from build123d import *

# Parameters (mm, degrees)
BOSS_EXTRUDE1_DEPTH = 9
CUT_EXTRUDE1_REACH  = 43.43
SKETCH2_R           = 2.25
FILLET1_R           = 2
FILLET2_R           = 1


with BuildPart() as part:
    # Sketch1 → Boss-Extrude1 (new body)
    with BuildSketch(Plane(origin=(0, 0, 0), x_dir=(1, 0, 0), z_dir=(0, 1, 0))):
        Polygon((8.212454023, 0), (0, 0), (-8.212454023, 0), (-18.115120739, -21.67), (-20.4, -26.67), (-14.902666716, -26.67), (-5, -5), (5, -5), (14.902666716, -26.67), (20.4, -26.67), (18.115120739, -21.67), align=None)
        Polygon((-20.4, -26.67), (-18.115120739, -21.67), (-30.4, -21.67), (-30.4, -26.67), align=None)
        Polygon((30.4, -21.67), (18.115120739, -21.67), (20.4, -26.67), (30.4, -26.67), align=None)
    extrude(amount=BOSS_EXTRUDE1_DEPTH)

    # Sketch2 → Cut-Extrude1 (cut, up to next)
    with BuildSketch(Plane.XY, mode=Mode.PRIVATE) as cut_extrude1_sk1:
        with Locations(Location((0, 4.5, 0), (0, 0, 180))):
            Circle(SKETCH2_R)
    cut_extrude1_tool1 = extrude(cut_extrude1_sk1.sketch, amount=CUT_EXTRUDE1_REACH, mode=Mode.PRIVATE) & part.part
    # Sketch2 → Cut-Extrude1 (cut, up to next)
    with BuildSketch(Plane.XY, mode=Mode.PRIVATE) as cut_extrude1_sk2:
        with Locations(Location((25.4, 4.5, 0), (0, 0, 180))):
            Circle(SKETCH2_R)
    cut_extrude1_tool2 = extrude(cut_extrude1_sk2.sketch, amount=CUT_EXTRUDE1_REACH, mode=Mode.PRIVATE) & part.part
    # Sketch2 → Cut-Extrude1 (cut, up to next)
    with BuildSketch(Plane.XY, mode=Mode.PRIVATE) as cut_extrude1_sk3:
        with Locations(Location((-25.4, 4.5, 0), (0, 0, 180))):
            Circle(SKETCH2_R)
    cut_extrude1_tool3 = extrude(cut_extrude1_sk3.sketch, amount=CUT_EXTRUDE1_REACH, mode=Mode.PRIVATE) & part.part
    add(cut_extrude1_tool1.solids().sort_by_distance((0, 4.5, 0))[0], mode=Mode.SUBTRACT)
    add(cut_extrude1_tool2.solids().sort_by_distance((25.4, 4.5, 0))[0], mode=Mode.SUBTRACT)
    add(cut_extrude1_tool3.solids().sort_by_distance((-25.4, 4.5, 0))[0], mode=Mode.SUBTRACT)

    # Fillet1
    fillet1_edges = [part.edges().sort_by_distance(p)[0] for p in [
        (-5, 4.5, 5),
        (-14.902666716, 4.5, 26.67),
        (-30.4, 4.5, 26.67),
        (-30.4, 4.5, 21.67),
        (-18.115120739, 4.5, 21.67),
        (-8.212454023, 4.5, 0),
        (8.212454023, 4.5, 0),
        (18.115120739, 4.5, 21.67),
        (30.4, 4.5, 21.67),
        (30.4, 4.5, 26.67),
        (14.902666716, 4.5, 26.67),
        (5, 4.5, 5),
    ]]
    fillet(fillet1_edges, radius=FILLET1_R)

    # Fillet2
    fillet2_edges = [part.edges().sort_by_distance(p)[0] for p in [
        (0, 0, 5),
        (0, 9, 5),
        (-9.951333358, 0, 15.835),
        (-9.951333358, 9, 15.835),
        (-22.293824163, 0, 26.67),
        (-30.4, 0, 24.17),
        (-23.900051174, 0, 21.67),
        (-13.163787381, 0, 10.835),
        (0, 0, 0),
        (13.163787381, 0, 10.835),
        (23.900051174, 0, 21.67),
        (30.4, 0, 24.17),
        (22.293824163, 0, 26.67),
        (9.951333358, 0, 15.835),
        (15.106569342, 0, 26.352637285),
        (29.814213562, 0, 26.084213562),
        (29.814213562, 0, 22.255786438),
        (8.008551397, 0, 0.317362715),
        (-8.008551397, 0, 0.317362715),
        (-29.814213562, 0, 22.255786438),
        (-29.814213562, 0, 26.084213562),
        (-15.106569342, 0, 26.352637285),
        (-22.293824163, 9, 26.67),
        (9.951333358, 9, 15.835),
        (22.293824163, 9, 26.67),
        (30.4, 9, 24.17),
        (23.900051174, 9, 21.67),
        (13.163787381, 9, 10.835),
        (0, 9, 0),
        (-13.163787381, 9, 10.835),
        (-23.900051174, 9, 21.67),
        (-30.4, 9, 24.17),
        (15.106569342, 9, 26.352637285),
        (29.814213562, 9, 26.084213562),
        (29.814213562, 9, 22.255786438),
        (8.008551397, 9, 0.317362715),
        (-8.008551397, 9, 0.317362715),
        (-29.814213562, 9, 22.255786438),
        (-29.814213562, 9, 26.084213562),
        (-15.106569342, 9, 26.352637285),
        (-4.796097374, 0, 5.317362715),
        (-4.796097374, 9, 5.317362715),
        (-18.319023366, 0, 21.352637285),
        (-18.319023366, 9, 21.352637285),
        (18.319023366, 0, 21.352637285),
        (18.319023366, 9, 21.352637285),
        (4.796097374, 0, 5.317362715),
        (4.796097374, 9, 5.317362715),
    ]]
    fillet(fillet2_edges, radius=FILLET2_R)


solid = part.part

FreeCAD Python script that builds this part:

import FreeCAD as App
import Part
import Sketcher
from FreeCAD import Vector
Q = App.Units.Quantity


def edges_at(feature, points):
    """Names of the edges that pass closest to the given points."""
    edges = feature.Shape.Edges
    near = lambda p: min(range(len(edges)), key=lambda i: edges[i].distToShape(Part.Vertex(*p))[0])
    return sorted({f"Edge{near(p) + 1}" for p in points})


def add_polygon(sketch, points):
    """Adds a closed chain of lines whose ends are joined by coincident constraints."""
    first, n = sketch.GeometryCount, len(points)
    for a, b in zip(points, points[1:] + points[:1]):
        sketch.addGeometry(Part.LineSegment(App.Vector(*a, 0), App.Vector(*b, 0)), False)
    for i in range(n):
        sketch.addConstraint(Sketcher.Constraint("Coincident", first + i, 2, first + (i + 1) % n, 1))

doc = App.newDocument("Part")
body = doc.addObject("PartDesign::Body", "Body")

# Sketch on XZ plane
sketch1 = body.newObject("Sketcher::SketchObject", "Sketch")
sketch1.AttachmentSupport = (doc.getObject("XZ_Plane"), [""])
sketch1.MapMode = "FlatFace"
add_polygon(sketch1, [(8.212454, 0), (-8.212454, 0), (-18.115121, 21.67), (-30.4, 21.67), (-30.4, 26.67), (-14.902667, 26.67), (-5, 5), (5, 5), (14.902667, 26.67), (30.4, 26.67), (30.4, 21.67), (18.115121, 21.67)])  # lines 0-11
sketch1.addConstraint(Sketcher.Constraint("Horizontal", 0))
sketch1.addConstraint(Sketcher.Constraint("Horizontal", 2))
sketch1.addConstraint(Sketcher.Constraint("Vertical", 3))
sketch1.addConstraint(Sketcher.Constraint("Horizontal", 4))
sketch1.addConstraint(Sketcher.Constraint("Horizontal", 6))
sketch1.addConstraint(Sketcher.Constraint("Horizontal", 8))
sketch1.addConstraint(Sketcher.Constraint("Vertical", 9))
sketch1.addConstraint(Sketcher.Constraint("Horizontal", 10))
sketch1.addConstraint(Sketcher.Constraint("Symmetric", 0, 2, 11, 2, -1, 1))
sketch1.addConstraint(Sketcher.Constraint("Symmetric", 4, 2, 7, 2, -2))
sketch1.addConstraint(Sketcher.Constraint("Symmetric", 2, 2, 9, 2, -2))
sketch1.addConstraint(Sketcher.Constraint("Parallel", 1, 5))
sketch1.addConstraint(Sketcher.Constraint("Parallel", 7, 11))
sketch1.addConstraint(Sketcher.Constraint("Equal", 2, 10))
sketch1.addConstraint(Sketcher.Constraint("Equal", 1, 5))
sketch1.addConstraint(Sketcher.Constraint("DistanceX", 6, 1, 6, 2, Q("10 mm")))
sketch1.addConstraint(Sketcher.Constraint("DistanceY", 3, 1, 3, 2, Q("5 mm")))
sketch1.addConstraint(Sketcher.Constraint("DistanceX", 2, 2, -1, 1, Q("30.4 mm")))
sketch1.addConstraint(Sketcher.Constraint("DistanceY", -1, 1, 1, 2, Q("21.67 mm")))
sketch1.addConstraint(Sketcher.Constraint("DistanceX", 0, 2, 0, 1, Q("16.424908 mm")))
sketch1.addConstraint(Sketcher.Constraint("DistanceX", 2, 2, 2, 1, Q("12.284879 mm")))
pad1 = body.newObject("PartDesign::Pad", "Pad")
pad1.Profile = sketch1
pad1.Length = 9
pad1.Reversed = True

# Sketch on XY plane
sketch2 = body.newObject("Sketcher::SketchObject", "Sketch001")
sketch2.AttachmentSupport = (doc.getObject("XY_Plane"), [""])
sketch2.MapMode = "FlatFace"
sketch2.addGeometry(Part.Circle(Vector(0, 4.5, 0), Vector(0, 0, 1), 2.25), False)
sketch2.addConstraint(Sketcher.Constraint("PointOnObject", 0, 3, -2))
sketch2.addConstraint(Sketcher.Constraint("Diameter", 0, Q("4.5 mm")))
sketch2.addConstraint(Sketcher.Constraint("DistanceY", -1, 1, 0, 3, Q("4.5 mm")))
pocket1 = body.newObject("PartDesign::Pocket", "Pocket")
pocket1.Profile = sketch2
pocket1.Type = "UpToFirst"
pocket1.Reversed = True

# Sketch on XY plane
sketch3 = body.newObject("Sketcher::SketchObject", "Sketch002")
sketch3.AttachmentSupport = (doc.getObject("XY_Plane"), [""])
sketch3.MapMode = "FlatFace"
sketch3.addGeometry(Part.Circle(Vector(25.4, 4.5, 0), Vector(0, 0, 1), 2.25), False)
sketch3.addConstraint(Sketcher.Constraint("Diameter", 0, Q("4.5 mm")))
sketch3.addConstraint(Sketcher.Constraint("DistanceX", -1, 1, 0, 3, Q("25.4 mm")))
sketch3.addConstraint(Sketcher.Constraint("DistanceY", -1, 1, 0, 3, Q("4.5 mm")))
pocket2 = body.newObject("PartDesign::Pocket", "Pocket001")
pocket2.Profile = sketch3
pocket2.Length = 26.67
pocket2.Reversed = True

# Sketch on XY plane
sketch4 = body.newObject("Sketcher::SketchObject", "Sketch003")
sketch4.AttachmentSupport = (doc.getObject("XY_Plane"), [""])
sketch4.MapMode = "FlatFace"
sketch4.addGeometry(Part.Circle(Vector(-25.4, 4.5, 0), Vector(0, 0, 1), 2.25), False)
sketch4.addConstraint(Sketcher.Constraint("Diameter", 0, Q("4.5 mm")))
sketch4.addConstraint(Sketcher.Constraint("DistanceX", 0, 3, -1, 1, Q("25.4 mm")))
sketch4.addConstraint(Sketcher.Constraint("DistanceY", -1, 1, 0, 3, Q("4.5 mm")))
pocket3 = body.newObject("PartDesign::Pocket", "Pocket002")
pocket3.Profile = sketch4
pocket3.Length = 26.67
pocket3.Reversed = True
doc.recompute()

fillet = body.newObject("PartDesign::Fillet", "Fillet")
fillet.Base = (pocket3, edges_at(pocket3, [
    (-5, 4.5, 5),
    (-14.903, 4.5, 26.67),
    (-30.4, 4.5, 26.67),
    (-30.4, 4.5, 21.67),
    (-18.115, 4.5, 21.67),
    (-8.212, 4.5, 0),
    (8.212, 4.5, 0),
    (18.115, 4.5, 21.67),
    (30.4, 4.5, 21.67),
    (30.4, 4.5, 26.67),
    (14.903, 4.5, 26.67),
    (5, 4.5, 5),
]))
fillet.Radius = 2
doc.recompute()

fillet2 = body.newObject("PartDesign::Fillet", "Fillet001")
fillet2.Base = (fillet, edges_at(fillet, [
    (0, 0, 5),
    (0, 9, 5),
    (-9.951, 0, 15.835),
    (-9.951, 9, 15.835),
    (-22.294, 0, 26.67),
    (-30.4, 0, 24.17),
    (-23.9, 0, 21.67),
    (-13.164, 0, 10.835),
    (0, 0, 0),
    (13.164, 0, 10.835),
    (23.9, 0, 21.67),
    (30.4, 0, 24.17),
    (22.294, 0, 26.67),
    (9.951, 0, 15.835),
    (15.107, 0, 26.353),
    (29.814, 0, 26.084),
    (29.814, 0, 22.256),
    (8.009, 0, 0.317),
    (-8.009, 0, 0.317),
    (-29.814, 0, 22.256),
    (-29.814, 0, 26.084),
    (-15.107, 0, 26.353),
    (-22.294, 9, 26.67),
    (9.951, 9, 15.835),
    (22.294, 9, 26.67),
    (30.4, 9, 24.17),
    (23.9, 9, 21.67),
    (13.164, 9, 10.835),
    (0, 9, 0),
    (-13.164, 9, 10.835),
    (-23.9, 9, 21.67),
    (-30.4, 9, 24.17),
    (15.107, 9, 26.353),
    (29.814, 9, 26.084),
    (29.814, 9, 22.256),
    (8.009, 9, 0.317),
    (-8.009, 9, 0.317),
    (-29.814, 9, 22.256),
    (-29.814, 9, 26.084),
    (-15.107, 9, 26.353),
    (-4.796, 0, 5.317),
    (-4.796, 9, 5.317),
    (-18.319, 0, 21.353),
    (-18.319, 9, 21.353),
    (18.319, 0, 21.353),
    (18.319, 9, 21.353),
    (4.796, 0, 5.317),
    (4.796, 9, 5.317),
]))
fillet2.Radius = 1

doc.recompute()
